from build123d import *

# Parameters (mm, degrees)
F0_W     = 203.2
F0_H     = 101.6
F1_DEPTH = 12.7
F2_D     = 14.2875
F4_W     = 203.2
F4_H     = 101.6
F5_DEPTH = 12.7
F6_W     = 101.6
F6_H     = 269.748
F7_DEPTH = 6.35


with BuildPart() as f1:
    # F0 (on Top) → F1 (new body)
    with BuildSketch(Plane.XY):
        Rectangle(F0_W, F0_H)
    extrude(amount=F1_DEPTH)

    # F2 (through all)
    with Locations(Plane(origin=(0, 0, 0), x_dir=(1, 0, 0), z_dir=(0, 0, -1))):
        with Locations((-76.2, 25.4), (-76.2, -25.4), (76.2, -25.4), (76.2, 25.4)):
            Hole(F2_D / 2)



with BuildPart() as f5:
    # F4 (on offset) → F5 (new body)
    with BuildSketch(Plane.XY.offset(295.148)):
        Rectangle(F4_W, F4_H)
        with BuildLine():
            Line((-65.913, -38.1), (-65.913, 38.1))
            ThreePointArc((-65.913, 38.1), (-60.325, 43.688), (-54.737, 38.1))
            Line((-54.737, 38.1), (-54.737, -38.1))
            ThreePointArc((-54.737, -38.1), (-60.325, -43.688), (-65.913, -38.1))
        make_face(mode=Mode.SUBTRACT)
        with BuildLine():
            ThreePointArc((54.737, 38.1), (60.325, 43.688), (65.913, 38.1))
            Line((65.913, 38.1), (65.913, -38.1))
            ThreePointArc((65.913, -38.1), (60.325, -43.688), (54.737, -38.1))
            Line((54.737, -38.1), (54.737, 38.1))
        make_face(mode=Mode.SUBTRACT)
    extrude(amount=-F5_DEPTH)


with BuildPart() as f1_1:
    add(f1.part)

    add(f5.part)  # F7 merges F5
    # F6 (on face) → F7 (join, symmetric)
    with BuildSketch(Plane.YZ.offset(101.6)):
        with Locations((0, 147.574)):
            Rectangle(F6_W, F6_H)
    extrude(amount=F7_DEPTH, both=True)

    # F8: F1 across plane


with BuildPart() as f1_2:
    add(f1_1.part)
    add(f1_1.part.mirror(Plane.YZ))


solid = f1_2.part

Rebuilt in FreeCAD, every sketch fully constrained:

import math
import FreeCAD as App
import Part
import Sketcher
from FreeCAD import Vector
Q = App.Units.Quantity


def add_polygon(sketch, points):
    """Adds a closed chain of lines whose ends are joined by coincident constraints."""
    first, n = sketch.GeometryCount, len(points)
    for a, b in zip(points, points[1:] + points[:1]):
        sketch.addGeometry(Part.LineSegment(App.Vector(*a, 0), App.Vector(*b, 0)), False)
    for i in range(n):
        sketch.addConstraint(Sketcher.Constraint("Coincident", first + i, 2, first + (i + 1) % n, 1))

doc = App.newDocument("Part")
params = doc.addObject("Spreadsheet::Sheet", "Params")
for row, (alias, value) in enumerate([
    ("sketch1_width", "8 in"),
    ("sketch1_height", "4 in"),
    ("pad1_length", "0.5 in"),
    ("sketch2_diameter", "0.5625 in"),
    ("hole_diameter", "0.5625 in"),
    ("sketch3_width", "8 in"),
    ("sketch3_height", "4 in"),
    ("sketch3_height2", "3 in"),
    ("sketch3_radius", "0.22 in"),
    ("pad2_length", "0.5 in"),
    ("sketch4_width", "4 in"),
    ("sketch4_height", "10.62 in"),
    ("pad3_length", "0.5 in"),
], start=1):
    params.set(f"A{row}", alias)
    params.set(f"B{row}", "=" + value)
    params.setAlias(f"B{row}", alias)

body = doc.addObject("PartDesign::Body", "Body")

# Sketch on XY plane
sketch1 = body.newObject("Sketcher::SketchObject", "Sketch")
sketch1.AttachmentSupport = (doc.getObject("XY_Plane"), [""])
sketch1.MapMode = "FlatFace"
add_polygon(sketch1, [(-102, 51), (-102, -51), (102, -51), (102, 51)])  # lines 0-3
sketch1.addConstraint([
    Sketcher.Constraint("Vertical", 0),
    Sketcher.Constraint("Horizontal", 1),
    Sketcher.Constraint("Vertical", 2),
    Sketcher.Constraint("Horizontal", 3),
    Sketcher.Constraint("Symmetric", 0, 2, 2, 2, -1, 1),
    Sketcher.Constraint("DistanceX", 1, 1, 1, 2, Q("8 in")),
    Sketcher.Constraint("DistanceY", 0, 2, 0, 1, Q("4 in")),
])
sketch1.setExpression("Constraints[9]", "Params.sketch1_width")
sketch1.setExpression("Constraints[10]", "Params.sketch1_height")
pad1 = body.newObject("PartDesign::Pad", "Pad")
pad1.Profile = sketch1
pad1.setExpression("Length", "Params.pad1_length")

# Sketch on XY plane
sketch2 = body.newObject("Sketcher::SketchObject", "Sketch001")
sketch2.AttachmentSupport = (doc.getObject("XY_Plane"), [""])
sketch2.MapMode = "FlatFace"
sketch2.addGeometry([
    Part.Circle(Vector(-76, -25, 0), Vector(0, 0, 1), 7),
    Part.Circle(Vector(-76, 25, 0), Vector(0, 0, 1), 7),
    Part.Circle(Vector(76, 25, 0), Vector(0, 0, 1), 7),
    Part.Circle(Vector(76, -25, 0), Vector(0, 0, 1), 7),
], False)
sketch2.addConstraint([
    Sketcher.Constraint("Equal", 0, 1),
    Sketcher.Constraint("Equal", 1, 2),
    Sketcher.Constraint("Equal", 2, 3),
    Sketcher.Constraint("Symmetric", 0, 3, 2, 3, -1, 1),
    Sketcher.Constraint("Symmetric", 1, 3, 3, 3, -1, 1),
    Sketcher.Constraint("Symmetric", 1, 3, 2, 3, -2),
    Sketcher.Constraint("Diameter", 0, Q("0.5625 in")),
    Sketcher.Constraint("DistanceX", 0, 3, -1, 1, Q("3 in")),
    Sketcher.Constraint("DistanceY", 0, 3, -1, 1, Q("1 in")),
])
sketch2.setExpression("Constraints[6]", "Params.sketch2_diameter")
doc.recompute()
hole = body.newObject("PartDesign::Hole", "Hole")
hole.Profile = sketch2
hole.ThreadType = "None"
hole.setExpression("Diameter", "Params.hole_diameter")
hole.DepthType = "ThroughAll"
hole.Reversed = True
body2 = doc.addObject("PartDesign::Body", "Body001")

# Sketch on XY plane
sketch3 = body2.newObject("Sketcher::SketchObject", "Sketch002")
sketch3.AttachmentSupport = (doc.getObject("XY_Plane001"), [""])
sketch3.MapMode = "FlatFace"
sketch3.AttachmentOffset = App.Placement(Vector(0, 0, 11.62 * 25.4), App.Rotation())
add_polygon(sketch3, [(-102, 51), (-102, -51), (102, -51), (102, 51)])  # lines 0-3
sketch3.addGeometry(Part.ArcOfCircle(Part.Circle(Vector(-60, -38, 0), Vector(0, 0, 1), 6), math.radians(180), math.radians(360)), False)  # 4
sketch3.addGeometry(Part.LineSegment(Vector(-66, -38, 0), Vector(-66, 38, 0)), False)  # 5
sketch3.addGeometry(Part.ArcOfCircle(Part.Circle(Vector(-60, 38, 0), Vector(0, 0, 1), 6), math.radians(0), math.radians(180)), False)  # 6
sketch3.addGeometry(Part.LineSegment(Vector(-55, 38, 0), Vector(-55, -38, 0)), False)  # 7
sketch3.addGeometry(Part.LineSegment(Vector(55, -38, 0), Vector(55, 38, 0)), False)  # 8
sketch3.addGeometry(Part.ArcOfCircle(Part.Circle(Vector(60, 38, 0), Vector(0, 0, 1), 6), math.radians(0), math.radians(180)), False)  # 9
sketch3.addGeometry(Part.LineSegment(Vector(66, 38, 0), Vector(66, -38, 0)), False)  # 10
sketch3.addGeometry(Part.ArcOfCircle(Part.Circle(Vector(60, -38, 0), Vector(0, 0, 1), 6), math.radians(180), math.radians(360)), False)  # 11
sketch3.addConstraint([
    Sketcher.Constraint("Tangent", 4, 1, 5, 1),
    Sketcher.Constraint("Tangent", 5, 2, 6, 2),
    Sketcher.Constraint("Tangent", 6, 1, 7, 1),
    Sketcher.Constraint("Tangent", 7, 2, 4, 2),
    Sketcher.Constraint("Tangent", 8, 2, 9, 2),
    Sketcher.Constraint("Tangent", 9, 1, 10, 1),
    Sketcher.Constraint("Tangent", 10, 2, 11, 2),
    Sketcher.Constraint("Tangent", 11, 1, 8, 1),
    Sketcher.Constraint("Vertical", 0),
    Sketcher.Constraint("Horizontal", 1),
    Sketcher.Constraint("Vertical", 2),
    Sketcher.Constraint("Horizontal", 3),
    Sketcher.Constraint("Vertical", 5),
    Sketcher.Constraint("Vertical", 7),
    Sketcher.Constraint("Vertical", 8),
    Sketcher.Constraint("Vertical", 10),
    Sketcher.Constraint("Equal", 6, 9),
    Sketcher.Constraint("Symmetric", 4, 3, 9, 3, -1, 1),
    Sketcher.Constraint("Symmetric", 0, 2, 2, 2, -1, 1),
    Sketcher.Constraint("Horizontal", 6, 3, 9, 3),
    Sketcher.Constraint("Horizontal", 4, 3, 11, 3),
    Sketcher.Constraint("DistanceX", 1, 1, 1, 2, Q("8 in")),
    Sketcher.Constraint("DistanceY", 0, 2, 0, 1, Q("4 in")),
    Sketcher.Constraint("DistanceY", 5, 1, 5, 2, Q("3 in")),
    Sketcher.Constraint("Radius", 4, Q("0.22 in")),
    Sketcher.Constraint("DistanceX", 6, 3, 9, 3, Q("4.75 in")),
])
sketch3.setExpression("Constraints[25]", "Params.sketch3_width")
sketch3.setExpression("Constraints[26]", "Params.sketch3_height")
sketch3.setExpression("Constraints[27]", "Params.sketch3_height2")
sketch3.setExpression("Constraints[28]", "Params.sketch3_radius")
pad2 = body2.newObject("PartDesign::Pad", "Pad001")
pad2.Profile = sketch3
pad2.setExpression("Length", "Params.pad2_length")
pad2.Reversed = True
body.AllowCompound = True
doc.recompute()

boolean = body.newObject("PartDesign::Boolean", "Boolean")
boolean.Type = "Fuse"
boolean.addObjects([body2])

# Sketch on YZ plane
sketch4 = body.newObject("Sketcher::SketchObject", "Sketch003")
sketch4.AttachmentSupport = (doc.getObject("YZ_Plane"), [""])
sketch4.MapMode = "FlatFace"
sketch4.AttachmentOffset = App.Placement(Vector(0, 0, 4 * 25.4), App.Rotation())
add_polygon(sketch4, [(-51, 282), (-51, 13), (51, 13), (51, 282)])  # lines 0-3
sketch4.addConstraint([
    Sketcher.Constraint("Vertical", 0),
    Sketcher.Constraint("Horizontal", 1),
    Sketcher.Constraint("Vertical", 2),
    Sketcher.Constraint("Horizontal", 3),
    Sketcher.Constraint("DistanceX", 1, 1, 1, 2, Q("4 in")),
    Sketcher.Constraint("DistanceX", 0, 2, -1, 1, Q("2 in")),
    Sketcher.Constraint("DistanceY", 0, 2, 0, 1, Q("10.62 in")),
    Sketcher.Constraint("DistanceY", -1, 1, 0, 2, Q("0.5 in")),
])
sketch4.setExpression("Constraints[8]", "Params.sketch4_width")
sketch4.setExpression("Constraints[10]", "Params.sketch4_height")
pad3 = body.newObject("PartDesign::Pad", "Pad002")
pad3.Profile = sketch4
pad3.setExpression("Length", "Params.pad3_length")
pad3.Midplane = True
body3 = doc.addObject("PartDesign::Body", "Body002")
doc.recompute()

body3.BaseFeature = body
doc.recompute()

mirroring = doc.addObject("Part::Mirroring", "Mirroring")
mirroring.Source = body
mirroring.Base = Vector(0, 0, 0)
mirroring.Normal = Vector(1, 0, 0)
body4 = doc.addObject("PartDesign::Body", "Body003")
body4.BaseFeature = mirroring
boolean2 = body3.newObject("PartDesign::Boolean", "Boolean001")
boolean2.Type = "Fuse"
boolean2.addObjects([body4])
doc.recompute()
mirroring.Visibility = False

doc.recompute()
